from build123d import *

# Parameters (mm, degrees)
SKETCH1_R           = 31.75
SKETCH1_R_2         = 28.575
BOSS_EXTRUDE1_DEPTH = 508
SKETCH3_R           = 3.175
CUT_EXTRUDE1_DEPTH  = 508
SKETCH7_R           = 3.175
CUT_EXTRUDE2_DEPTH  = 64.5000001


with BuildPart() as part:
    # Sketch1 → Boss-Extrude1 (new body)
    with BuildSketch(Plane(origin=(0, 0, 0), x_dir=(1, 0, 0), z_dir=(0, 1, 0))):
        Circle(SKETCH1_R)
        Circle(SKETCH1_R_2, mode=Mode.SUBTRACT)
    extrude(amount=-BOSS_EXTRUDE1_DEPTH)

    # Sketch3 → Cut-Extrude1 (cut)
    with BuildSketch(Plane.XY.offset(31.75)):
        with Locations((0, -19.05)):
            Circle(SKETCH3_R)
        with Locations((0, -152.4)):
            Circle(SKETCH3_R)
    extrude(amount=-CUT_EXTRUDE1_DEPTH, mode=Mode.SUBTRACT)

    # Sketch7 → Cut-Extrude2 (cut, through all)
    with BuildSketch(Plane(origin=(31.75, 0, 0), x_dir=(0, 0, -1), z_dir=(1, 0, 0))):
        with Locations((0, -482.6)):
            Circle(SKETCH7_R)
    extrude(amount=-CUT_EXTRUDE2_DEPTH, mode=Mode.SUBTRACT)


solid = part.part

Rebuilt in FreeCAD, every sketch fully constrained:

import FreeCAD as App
import Part
import Sketcher

V = App.Vector
Q = App.Units.Quantity

doc = App.newDocument("Part")
body = doc.addObject("PartDesign::Body", "Body")

sketch1 = body.newObject("Sketcher::SketchObject", "Sketch")
sketch1.AttachmentSupport = (doc.getObject("XZ_Plane"), [""])
sketch1.MapMode = "FlatFace"
sketch1.addGeometry(Part.Circle(V(0, 0, 0), V(0, 0, 1), 31.75), False)
sketch1.addGeometry(Part.Circle(V(0, 0, 0), V(0, 0, 1), 28.575), False)
sketch1.addConstraint(Sketcher.Constraint("Coincident", 0, 3, -1, 1))
sketch1.addConstraint(Sketcher.Constraint("Coincident", 1, 3, -1, 1))
sketch1.addConstraint(Sketcher.Constraint("Diameter", 0, Q("2.5 in")))
sketch1.addConstraint(Sketcher.Constraint("Diameter", 1, Q("2.25 in")))
pad1 = body.newObject("PartDesign::Pad", "Pad")
pad1.Profile = sketch1
pad1.Length = Q("20 in")

sketch2 = body.newObject("Sketcher::SketchObject", "Sketch001")
sketch2.AttachmentSupport = (doc.getObject("XY_Plane"), [""])
sketch2.MapMode = "FlatFace"
sketch2.AttachmentOffset = App.Placement(V(0, 0, 1.25 * 25.4), App.Rotation())
sketch2.addGeometry(Part.Circle(V(0, -19.05, 0), V(0, 0, 1), 3.175), False)
sketch2.addGeometry(Part.Circle(V(0, -152.4, 0), V(0, 0, 1), 3.175), False)
sketch2.addConstraint(Sketcher.Constraint("Equal", 0, 1))
sketch2.addConstraint(Sketcher.Constraint("PointOnObject", 0, 3, -2))
sketch2.addConstraint(Sketcher.Constraint("PointOnObject", 1, 3, -2))
sketch2.addConstraint(Sketcher.Constraint("Diameter", 0, Q("0.25 in")))
sketch2.addConstraint(Sketcher.Constraint("DistanceY", 1, 3, -1, 1, Q("6 in")))
sketch2.addConstraint(Sketcher.Constraint("DistanceY", 0, 3, -1, 1, Q("0.75 in")))
pocket1 = body.newObject("PartDesign::Pocket", "Pocket")
pocket1.Profile = sketch2
pocket1.Length = Q("20 in")

sketch3 = body.newObject("Sketcher::SketchObject", "Sketch002")
sketch3.AttachmentSupport = (doc.getObject("YZ_Plane"), [""])
sketch3.MapMode = "FlatFace"
sketch3.AttachmentOffset = App.Placement(V(0, 0, 1.25 * 25.4), App.Rotation())
sketch3.addGeometry(Part.Circle(V(-482.6, 0, 0), V(0, 0, 1), 3.175), False)
sketch3.addConstraint(Sketcher.Constraint("PointOnObject", 0, 3, -1))
sketch3.addConstraint(Sketcher.Constraint("Diameter", 0, Q("0.25 in")))
sketch3.addConstraint(Sketcher.Constraint("DistanceX", 0, 3, -1, 1, Q("19 in")))
pocket2 = body.newObject("PartDesign::Pocket", "Pocket001")
pocket2.Profile = sketch3
pocket2.Type = "ThroughAll"

doc.recompute()
